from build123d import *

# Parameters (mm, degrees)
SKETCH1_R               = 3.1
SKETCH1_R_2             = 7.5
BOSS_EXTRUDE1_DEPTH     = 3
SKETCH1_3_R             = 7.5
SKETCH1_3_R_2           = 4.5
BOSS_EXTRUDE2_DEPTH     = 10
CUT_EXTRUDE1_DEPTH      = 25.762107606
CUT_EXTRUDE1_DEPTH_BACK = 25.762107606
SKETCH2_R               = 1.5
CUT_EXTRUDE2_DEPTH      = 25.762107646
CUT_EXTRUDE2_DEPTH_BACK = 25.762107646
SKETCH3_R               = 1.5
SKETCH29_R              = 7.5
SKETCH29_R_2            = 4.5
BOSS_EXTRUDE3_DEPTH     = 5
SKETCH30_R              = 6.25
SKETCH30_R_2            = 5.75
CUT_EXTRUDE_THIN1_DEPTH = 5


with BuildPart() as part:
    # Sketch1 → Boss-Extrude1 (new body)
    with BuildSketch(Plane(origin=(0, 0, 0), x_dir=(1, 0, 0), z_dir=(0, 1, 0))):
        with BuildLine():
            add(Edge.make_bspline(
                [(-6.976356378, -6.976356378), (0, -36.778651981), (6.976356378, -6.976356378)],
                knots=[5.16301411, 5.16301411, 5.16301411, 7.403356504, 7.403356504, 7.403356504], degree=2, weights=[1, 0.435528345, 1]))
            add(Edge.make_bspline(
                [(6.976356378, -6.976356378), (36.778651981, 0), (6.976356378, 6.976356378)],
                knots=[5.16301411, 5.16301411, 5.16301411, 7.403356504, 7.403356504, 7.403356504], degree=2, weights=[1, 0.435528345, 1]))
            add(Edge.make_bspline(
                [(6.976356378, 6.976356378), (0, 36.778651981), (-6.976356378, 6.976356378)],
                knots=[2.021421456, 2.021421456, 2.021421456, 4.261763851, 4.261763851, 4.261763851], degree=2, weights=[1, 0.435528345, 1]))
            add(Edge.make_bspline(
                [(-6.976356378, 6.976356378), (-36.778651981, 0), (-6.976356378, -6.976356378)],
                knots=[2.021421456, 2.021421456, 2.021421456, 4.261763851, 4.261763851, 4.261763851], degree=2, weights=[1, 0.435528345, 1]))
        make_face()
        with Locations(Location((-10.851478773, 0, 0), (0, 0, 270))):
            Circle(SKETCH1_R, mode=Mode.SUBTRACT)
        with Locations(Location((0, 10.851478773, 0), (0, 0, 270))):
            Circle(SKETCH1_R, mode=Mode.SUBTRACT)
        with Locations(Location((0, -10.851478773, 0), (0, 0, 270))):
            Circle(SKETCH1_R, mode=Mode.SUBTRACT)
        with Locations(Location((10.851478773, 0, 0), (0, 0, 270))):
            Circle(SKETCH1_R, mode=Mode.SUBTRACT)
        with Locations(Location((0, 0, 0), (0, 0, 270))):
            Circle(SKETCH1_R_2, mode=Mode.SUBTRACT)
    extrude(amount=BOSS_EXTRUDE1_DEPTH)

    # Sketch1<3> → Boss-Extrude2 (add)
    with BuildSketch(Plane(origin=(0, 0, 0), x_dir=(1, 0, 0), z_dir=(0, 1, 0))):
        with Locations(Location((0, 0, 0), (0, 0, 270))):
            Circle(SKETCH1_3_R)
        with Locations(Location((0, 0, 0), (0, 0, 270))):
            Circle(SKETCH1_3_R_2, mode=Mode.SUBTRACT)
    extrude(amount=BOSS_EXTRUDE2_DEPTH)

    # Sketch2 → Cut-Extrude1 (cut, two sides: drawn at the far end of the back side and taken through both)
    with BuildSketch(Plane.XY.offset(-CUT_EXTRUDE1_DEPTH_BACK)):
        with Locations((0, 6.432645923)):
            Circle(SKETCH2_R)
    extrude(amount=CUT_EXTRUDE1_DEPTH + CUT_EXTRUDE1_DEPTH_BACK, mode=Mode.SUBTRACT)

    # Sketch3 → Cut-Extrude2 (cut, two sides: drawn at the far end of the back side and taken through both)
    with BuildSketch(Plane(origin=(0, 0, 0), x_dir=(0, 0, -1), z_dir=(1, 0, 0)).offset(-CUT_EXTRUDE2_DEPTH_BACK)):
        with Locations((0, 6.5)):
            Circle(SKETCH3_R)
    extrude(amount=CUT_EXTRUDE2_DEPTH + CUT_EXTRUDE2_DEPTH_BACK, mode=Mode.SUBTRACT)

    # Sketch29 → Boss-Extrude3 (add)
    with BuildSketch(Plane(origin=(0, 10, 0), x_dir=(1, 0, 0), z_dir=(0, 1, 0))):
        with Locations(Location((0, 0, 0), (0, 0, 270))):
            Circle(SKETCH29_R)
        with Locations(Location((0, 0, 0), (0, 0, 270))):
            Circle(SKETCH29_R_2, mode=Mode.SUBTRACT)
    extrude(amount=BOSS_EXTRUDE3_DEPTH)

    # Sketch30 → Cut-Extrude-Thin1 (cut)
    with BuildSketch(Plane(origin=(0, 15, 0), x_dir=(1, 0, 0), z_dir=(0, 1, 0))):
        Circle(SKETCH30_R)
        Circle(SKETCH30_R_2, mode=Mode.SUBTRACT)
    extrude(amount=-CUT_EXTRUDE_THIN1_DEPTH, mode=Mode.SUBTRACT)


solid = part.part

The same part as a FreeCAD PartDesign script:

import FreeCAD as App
import Part
import Sketcher
Q = App.Units.Quantity

doc = App.newDocument("Part")
params = doc.addObject("Spreadsheet::Sheet", "Params")
for row, (alias, value) in enumerate([
    ("sketch1_diameter", "15 mm"),
    ("sketch1_diameter2", "6.2 mm"),
    ("pad1_length", "3 mm"),
    ("sketch2_diameter", "15 mm"),
    ("sketch2_diameter2", "9 mm"),
    ("pad2_length", "10 mm"),
    ("sketch3_diameter", "3 mm"),
    ("sketch4_diameter", "3 mm"),
    ("sketch5_diameter", "15 mm"),
    ("sketch5_diameter2", "9 mm"),
    ("pad3_length", "5 mm"),
    ("sketch6_diameter", "12.5 mm"),
    ("sketch6_diameter2", "11.5 mm"),
    ("pocket3_length", "5 mm"),
], start=1):
    params.set(f"A{row}", alias)
    params.set(f"B{row}", "=" + value)
    params.setAlias(f"B{row}", alias)

body = doc.addObject("PartDesign::Body", "Body")

# Sketch on XZ plane
sketch1 = doc.addObject("Sketcher::SketchObject", "Sketch")
body.addObject(sketch1)
sketch1.AttachmentSupport = (doc.XZ_Plane, [""])
sketch1.MapMode = "FlatFace"
sketch1.addGeometry(Part.BSplineCurve([App.Vector(-6.976356, 6.976356, 0), App.Vector(0, 36.778652, 0), App.Vector(6.976356, 6.976356, 0)], [3, 3], [5.16301411, 7.403356504], False, 2, [1, 0.435528345, 1], False), False)
sketch1.addGeometry(Part.BSplineCurve([App.Vector(6.976356, 6.976356, 0), App.Vector(36.778652, 0, 0), App.Vector(6.976356, -6.976356, 0)], [3, 3], [5.16301411, 7.403356504], False, 2, [1, 0.435528345, 1], False), False)
sketch1.addGeometry(Part.BSplineCurve([App.Vector(6.976356, -6.976356, 0), App.Vector(0, -36.778652, 0), App.Vector(-6.976356, -6.976356, 0)], [3, 3], [2.021421456, 4.261763851], False, 2, [1, 0.435528345, 1], False), False)
sketch1.addGeometry(Part.BSplineCurve([App.Vector(-6.976356, -6.976356, 0), App.Vector(-36.778652, 0, 0), App.Vector(-6.976356, 6.976356, 0)], [3, 3], [2.021421456, 4.261763851], False, 2, [1, 0.435528345, 1], False), False)
sketch1.addGeometry(Part.Circle(App.Vector(0, 10.851479, 0), App.Vector(0, 0, 1), 3.1), False)
sketch1.addGeometry(Part.Circle(App.Vector(-10.851479, 0, 0), App.Vector(0, 0, 1), 3.1), False)
sketch1.addGeometry(Part.Circle(App.Vector(0, 0, 0), App.Vector(0, 0, 1), 7.5), False)
sketch1.addGeometry(Part.Circle(App.Vector(10.851479, 0, 0), App.Vector(0, 0, 1), 3.1), False)
sketch1.addGeometry(Part.Circle(App.Vector(0, -10.851479, 0), App.Vector(0, 0, 1), 3.1), False)
sketch1.addConstraint(Sketcher.Constraint("Block", 0))
sketch1.addConstraint(Sketcher.Constraint("Block", 1))
sketch1.addConstraint(Sketcher.Constraint("Block", 2))
sketch1.addConstraint(Sketcher.Constraint("Block", 3))
sketch1.addConstraint(Sketcher.Constraint("Coincident", 6, 3, -1, 1))
sketch1.addConstraint(Sketcher.Constraint("Equal", 4, 5))
sketch1.addConstraint(Sketcher.Constraint("Equal", 5, 7))
sketch1.addConstraint(Sketcher.Constraint("Equal", 7, 8))
sketch1.addConstraint(Sketcher.Constraint("Symmetric", 5, 3, 7, 3, -1, 1))
sketch1.addConstraint(Sketcher.Constraint("Symmetric", 4, 3, 8, 3, -1, 1))
sketch1.addConstraint(Sketcher.Constraint("PointOnObject", 4, 3, -2))
sketch1.addConstraint(Sketcher.Constraint("PointOnObject", 5, 3, -1))
sketch1.addConstraint(Sketcher.Constraint("Diameter", 6, Q("15 mm")))
sketch1.addConstraint(Sketcher.Constraint("Diameter", 4, Q("6.2 mm")))
sketch1.addConstraint(Sketcher.Constraint("DistanceY", -1, 1, 4, 3, Q("10.851479 mm")))
sketch1.addConstraint(Sketcher.Constraint("DistanceX", 5, 3, -1, 1, Q("10.851479 mm")))
sketch1.setExpression("Constraints[12]", "Params.sketch1_diameter")
sketch1.setExpression("Constraints[13]", "Params.sketch1_diameter2")
pad1 = doc.addObject("PartDesign::Pad", "Pad")
body.addObject(pad1)
pad1.Profile = sketch1
pad1.setExpression("Length", "Params.pad1_length")
pad1.Reversed = True

# Sketch on XZ plane
sketch2 = doc.addObject("Sketcher::SketchObject", "Sketch001")
body.addObject(sketch2)
sketch2.AttachmentSupport = (doc.XZ_Plane, [""])
sketch2.MapMode = "FlatFace"
sketch2.addGeometry(Part.Circle(App.Vector(0, 0, 0), App.Vector(0, 0, 1), 7.5), False)
sketch2.addGeometry(Part.Circle(App.Vector(0, 0, 0), App.Vector(0, 0, 1), 4.5), False)
sketch2.addConstraint(Sketcher.Constraint("Coincident", 0, 3, -1, 1))
sketch2.addConstraint(Sketcher.Constraint("Coincident", 1, 3, -1, 1))
sketch2.addConstraint(Sketcher.Constraint("Diameter", 0, Q("15 mm")))
sketch2.addConstraint(Sketcher.Constraint("Diameter", 1, Q("9 mm")))
sketch2.setExpression("Constraints[2]", "Params.sketch2_diameter")
sketch2.setExpression("Constraints[3]", "Params.sketch2_diameter2")
pad2 = doc.addObject("PartDesign::Pad", "Pad001")
body.addObject(pad2)
pad2.Profile = sketch2
pad2.setExpression("Length", "Params.pad2_length")
pad2.Reversed = True

# Sketch on XY plane
sketch3 = doc.addObject("Sketcher::SketchObject", "Sketch002")
body.addObject(sketch3)
sketch3.AttachmentSupport = (doc.XY_Plane, [""])
sketch3.MapMode = "FlatFace"
sketch3.addGeometry(Part.Circle(App.Vector(0, 6.4, 0), App.Vector(0, 0, 1), 1.5), False)
sketch3.addConstraint(Sketcher.Constraint("PointOnObject", 0, 3, -2))
sketch3.addConstraint(Sketcher.Constraint("Diameter", 0, Q("3 mm")))
sketch3.addConstraint(Sketcher.Constraint("DistanceY", -1, 1, 0, 3, Q("6.432646 mm")))
sketch3.setExpression("Constraints[1]", "Params.sketch3_diameter")
pocket1 = doc.addObject("PartDesign::Pocket", "Pocket")
body.addObject(pocket1)
pocket1.Profile = sketch3
pocket1.Type = "ThroughAll"
pocket1.Midplane = True

# Sketch on YZ plane
sketch4 = doc.addObject("Sketcher::SketchObject", "Sketch003")
body.addObject(sketch4)
sketch4.AttachmentSupport = (doc.YZ_Plane, [""])
sketch4.MapMode = "FlatFace"
sketch4.addGeometry(Part.Circle(App.Vector(6.5, 0, 0), App.Vector(0, 0, 1), 1.5), False)
sketch4.addConstraint(Sketcher.Constraint("PointOnObject", 0, 3, -1))
sketch4.addConstraint(Sketcher.Constraint("Diameter", 0, Q("3 mm")))
sketch4.addConstraint(Sketcher.Constraint("DistanceX", -1, 1, 0, 3, Q("6.5 mm")))
sketch4.setExpression("Constraints[1]", "Params.sketch4_diameter")
pocket2 = doc.addObject("PartDesign::Pocket", "Pocket001")
body.addObject(pocket2)
pocket2.Profile = sketch4
pocket2.Type = "ThroughAll"
pocket2.Midplane = True

# Sketch on XZ plane
sketch5 = doc.addObject("Sketcher::SketchObject", "Sketch004")
body.addObject(sketch5)
sketch5.AttachmentSupport = (doc.XZ_Plane, [""])
sketch5.MapMode = "FlatFace"
sketch5.AttachmentOffset = App.Placement(App.Vector(0, 0, -10), App.Rotation())
sketch5.addGeometry(Part.Circle(App.Vector(0, 0, 0), App.Vector(0, 0, 1), 7.5), False)
sketch5.addGeometry(Part.Circle(App.Vector(0, 0, 0), App.Vector(0, 0, 1), 4.5), False)
sketch5.addConstraint(Sketcher.Constraint("Coincident", 0, 3, -1, 1))
sketch5.addConstraint(Sketcher.Constraint("Coincident", 1, 3, -1, 1))
sketch5.addConstraint(Sketcher.Constraint("Diameter", 0, Q("15 mm")))
sketch5.addConstraint(Sketcher.Constraint("Diameter", 1, Q("9 mm")))
sketch5.setExpression("Constraints[2]", "Params.sketch5_diameter")
sketch5.setExpression("Constraints[3]", "Params.sketch5_diameter2")
pad3 = doc.addObject("PartDesign::Pad", "Pad002")
body.addObject(pad3)
pad3.Profile = sketch5
pad3.setExpression("Length", "Params.pad3_length")
pad3.Reversed = True

# Sketch on XZ plane
sketch6 = doc.addObject("Sketcher::SketchObject", "Sketch005")
body.addObject(sketch6)
sketch6.AttachmentSupport = (doc.XZ_Plane, [""])
sketch6.MapMode = "FlatFace"
sketch6.AttachmentOffset = App.Placement(App.Vector(0, 0, -15), App.Rotation())
sketch6.addGeometry(Part.Circle(App.Vector(0, 0, 0), App.Vector(0, 0, 1), 6), False)
sketch6.addGeometry(Part.Circle(App.Vector(0, 0, 0), App.Vector(0, 0, 1), 6), False)
sketch6.addConstraint(Sketcher.Constraint("Coincident", 0, 3, -1, 1))
sketch6.addConstraint(Sketcher.Constraint("Coincident", 1, 3, -1, 1))
sketch6.addConstraint(Sketcher.Constraint("Diameter", 0, Q("12.5 mm")))
sketch6.addConstraint(Sketcher.Constraint("Diameter", 1, Q("11.5 mm")))
sketch6.setExpression("Constraints[2]", "Params.sketch6_diameter")
sketch6.setExpression("Constraints[3]", "Params.sketch6_diameter2")
pocket3 = doc.addObject("PartDesign::Pocket", "Pocket002")
body.addObject(pocket3)
pocket3.Profile = sketch6
pocket3.setExpression("Length", "Params.pocket3_length")
pocket3.Reversed = True

doc.recompute()
